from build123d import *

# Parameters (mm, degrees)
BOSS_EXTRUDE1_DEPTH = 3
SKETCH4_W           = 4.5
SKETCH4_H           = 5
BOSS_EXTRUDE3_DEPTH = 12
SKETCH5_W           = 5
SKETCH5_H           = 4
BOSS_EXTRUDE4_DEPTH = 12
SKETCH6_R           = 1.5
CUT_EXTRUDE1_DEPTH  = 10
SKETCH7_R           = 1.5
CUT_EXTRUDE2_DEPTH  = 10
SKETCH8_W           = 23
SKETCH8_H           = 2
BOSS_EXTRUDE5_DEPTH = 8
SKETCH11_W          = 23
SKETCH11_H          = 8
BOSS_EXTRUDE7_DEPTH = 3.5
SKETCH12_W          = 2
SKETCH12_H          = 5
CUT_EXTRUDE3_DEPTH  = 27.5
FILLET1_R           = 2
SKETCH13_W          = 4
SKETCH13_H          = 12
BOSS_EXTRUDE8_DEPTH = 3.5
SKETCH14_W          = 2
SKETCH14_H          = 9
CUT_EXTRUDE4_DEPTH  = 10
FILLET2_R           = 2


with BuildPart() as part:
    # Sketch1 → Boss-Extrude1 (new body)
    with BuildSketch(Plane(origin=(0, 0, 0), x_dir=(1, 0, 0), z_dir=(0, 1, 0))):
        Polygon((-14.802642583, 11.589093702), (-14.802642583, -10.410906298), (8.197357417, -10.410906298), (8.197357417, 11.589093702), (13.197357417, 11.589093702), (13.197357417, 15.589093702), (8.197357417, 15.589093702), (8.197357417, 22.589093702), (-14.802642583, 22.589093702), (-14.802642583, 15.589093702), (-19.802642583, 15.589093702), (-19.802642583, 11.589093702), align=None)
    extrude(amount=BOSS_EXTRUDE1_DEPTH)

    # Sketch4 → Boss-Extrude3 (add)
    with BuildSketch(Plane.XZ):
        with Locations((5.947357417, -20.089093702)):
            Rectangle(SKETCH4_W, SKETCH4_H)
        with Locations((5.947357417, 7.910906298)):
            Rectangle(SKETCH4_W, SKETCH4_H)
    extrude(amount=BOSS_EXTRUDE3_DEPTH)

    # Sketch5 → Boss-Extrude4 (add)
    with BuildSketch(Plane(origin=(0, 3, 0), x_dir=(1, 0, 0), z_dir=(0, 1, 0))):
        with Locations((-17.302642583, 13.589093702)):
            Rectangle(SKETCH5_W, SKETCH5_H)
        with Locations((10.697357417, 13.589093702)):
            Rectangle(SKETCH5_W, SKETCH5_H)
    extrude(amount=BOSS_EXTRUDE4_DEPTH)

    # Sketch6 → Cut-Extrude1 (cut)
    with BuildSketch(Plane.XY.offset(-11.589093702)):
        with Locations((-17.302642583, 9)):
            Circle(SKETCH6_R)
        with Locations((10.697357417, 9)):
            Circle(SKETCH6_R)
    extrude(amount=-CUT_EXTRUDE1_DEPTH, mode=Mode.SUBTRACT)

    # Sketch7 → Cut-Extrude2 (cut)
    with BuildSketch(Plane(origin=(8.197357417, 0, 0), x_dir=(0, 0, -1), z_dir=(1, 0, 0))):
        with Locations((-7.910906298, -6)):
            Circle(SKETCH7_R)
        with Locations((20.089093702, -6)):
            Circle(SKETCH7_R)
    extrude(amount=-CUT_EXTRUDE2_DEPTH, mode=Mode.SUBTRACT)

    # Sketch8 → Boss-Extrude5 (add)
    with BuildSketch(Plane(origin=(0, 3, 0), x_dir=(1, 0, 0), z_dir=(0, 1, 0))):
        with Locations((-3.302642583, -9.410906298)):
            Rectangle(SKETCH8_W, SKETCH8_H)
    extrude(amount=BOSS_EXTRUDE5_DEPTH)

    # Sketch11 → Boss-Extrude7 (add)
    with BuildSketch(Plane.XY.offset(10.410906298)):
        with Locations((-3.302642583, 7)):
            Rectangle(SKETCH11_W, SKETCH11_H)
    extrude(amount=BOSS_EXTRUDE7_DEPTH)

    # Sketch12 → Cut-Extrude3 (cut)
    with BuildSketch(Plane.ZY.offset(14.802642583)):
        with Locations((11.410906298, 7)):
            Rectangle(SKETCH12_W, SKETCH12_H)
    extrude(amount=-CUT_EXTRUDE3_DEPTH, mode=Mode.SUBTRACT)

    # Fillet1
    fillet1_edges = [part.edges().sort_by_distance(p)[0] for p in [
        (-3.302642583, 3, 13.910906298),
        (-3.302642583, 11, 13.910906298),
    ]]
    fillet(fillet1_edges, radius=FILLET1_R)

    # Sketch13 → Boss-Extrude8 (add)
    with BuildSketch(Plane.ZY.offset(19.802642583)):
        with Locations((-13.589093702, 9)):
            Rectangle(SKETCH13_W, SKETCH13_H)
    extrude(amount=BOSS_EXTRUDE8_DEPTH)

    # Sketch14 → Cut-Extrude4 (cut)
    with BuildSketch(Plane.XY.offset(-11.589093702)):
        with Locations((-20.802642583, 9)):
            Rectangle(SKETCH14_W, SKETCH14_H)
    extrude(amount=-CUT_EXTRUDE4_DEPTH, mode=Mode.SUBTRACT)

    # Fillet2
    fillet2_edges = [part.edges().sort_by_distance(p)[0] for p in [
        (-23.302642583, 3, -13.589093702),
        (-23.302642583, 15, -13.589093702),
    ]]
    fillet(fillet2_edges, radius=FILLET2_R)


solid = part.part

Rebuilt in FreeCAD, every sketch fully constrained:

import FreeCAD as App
import Part
import Sketcher

V = App.Vector


def edges_at(feature, points):
    """Names of the edges that pass closest to the given points."""
    edges = feature.Shape.Edges
    near = lambda p: min(range(len(edges)), key=lambda i: edges[i].distToShape(Part.Vertex(*p))[0])
    return sorted({f"Edge{near(p) + 1}" for p in points})

doc = App.newDocument("Part")
body = doc.addObject("PartDesign::Body", "Body")

# Sketch on XZ plane
sketch1 = body.newObject("Sketcher::SketchObject", "Sketch")
sketch1.AttachmentSupport = (doc.getObject("XZ_Plane"), [""])
sketch1.MapMode = "FlatFace"
sketch1.addGeometry(Part.LineSegment(V(-14.8, -11.6, 0), V(-14.8, 10.4, 0)), False)
sketch1.addGeometry(Part.LineSegment(V(-14.8, 10.4, 0), V(8.2, 10.4, 0)), False)
sketch1.addGeometry(Part.LineSegment(V(8.2, 10.4, 0), V(8.2, -11.6, 0)), False)
sketch1.addGeometry(Part.LineSegment(V(8.2, -11.6, 0), V(13.2, -11.6, 0)), False)
sketch1.addGeometry(Part.LineSegment(V(13.2, -11.6, 0), V(13.2, -15.6, 0)), False)
sketch1.addGeometry(Part.LineSegment(V(13.2, -15.6, 0), V(8.2, -15.6, 0)), False)
sketch1.addGeometry(Part.LineSegment(V(8.2, -15.6, 0), V(8.2, -22.6, 0)), False)
sketch1.addGeometry(Part.LineSegment(V(8.2, -22.6, 0), V(-14.8, -22.6, 0)), False)
sketch1.addGeometry(Part.LineSegment(V(-14.8, -22.6, 0), V(-14.8, -15.6, 0)), False)
sketch1.addGeometry(Part.LineSegment(V(-14.8, -15.6, 0), V(-19.8, -15.6, 0)), False)
sketch1.addGeometry(Part.LineSegment(V(-19.8, -15.6, 0), V(-19.8, -11.6, 0)), False)
sketch1.addGeometry(Part.LineSegment(V(-19.8, -11.6, 0), V(-14.8, -11.6, 0)), False)
sketch1.addConstraint(Sketcher.Constraint("Coincident", 0, 2, 1, 1))
sketch1.addConstraint(Sketcher.Constraint("Coincident", 1, 2, 2, 1))
sketch1.addConstraint(Sketcher.Constraint("Coincident", 2, 2, 3, 1))
sketch1.addConstraint(Sketcher.Constraint("Coincident", 3, 2, 4, 1))
sketch1.addConstraint(Sketcher.Constraint("Coincident", 4, 2, 5, 1))
sketch1.addConstraint(Sketcher.Constraint("Coincident", 5, 2, 6, 1))
sketch1.addConstraint(Sketcher.Constraint("Coincident", 6, 2, 7, 1))
sketch1.addConstraint(Sketcher.Constraint("Coincident", 7, 2, 8, 1))
sketch1.addConstraint(Sketcher.Constraint("Coincident", 8, 2, 9, 1))
sketch1.addConstraint(Sketcher.Constraint("Coincident", 9, 2, 10, 1))
sketch1.addConstraint(Sketcher.Constraint("Coincident", 10, 2, 11, 1))
sketch1.addConstraint(Sketcher.Constraint("Coincident", 11, 2, 0, 1))
sketch1.addConstraint(Sketcher.Constraint("Vertical", 0))
sketch1.addConstraint(Sketcher.Constraint("Horizontal", 1))
sketch1.addConstraint(Sketcher.Constraint("Vertical", 2))
sketch1.addConstraint(Sketcher.Constraint("Horizontal", 3))
sketch1.addConstraint(Sketcher.Constraint("Vertical", 4))
sketch1.addConstraint(Sketcher.Constraint("Horizontal", 5))
sketch1.addConstraint(Sketcher.Constraint("Vertical", 6))
sketch1.addConstraint(Sketcher.Constraint("Horizontal", 7))
sketch1.addConstraint(Sketcher.Constraint("Vertical", 8))
sketch1.addConstraint(Sketcher.Constraint("Horizontal", 9))
sketch1.addConstraint(Sketcher.Constraint("Vertical", 10))
sketch1.addConstraint(Sketcher.Constraint("Horizontal", 11))
sketch1.addConstraint(Sketcher.Constraint("Horizontal", 5, 2, 8, 2))
sketch1.addConstraint(Sketcher.Constraint("Horizontal", 3, 2, 10, 2))
sketch1.addConstraint(Sketcher.Constraint("Vertical", 2, 2, 5, 2))
sketch1.addConstraint(Sketcher.Constraint("Vertical", 0, 2, 7, 2))
sketch1.addConstraint(Sketcher.Constraint("Equal", 5, 9))
sketch1.addConstraint(Sketcher.Constraint("DistanceX", 1, 1, 1, 2, 23.0))
sketch1.addConstraint(Sketcher.Constraint("DistanceX", 3, 1, 3, 2, 5.0))
sketch1.addConstraint(Sketcher.Constraint("DistanceY", 0, 1, 0, 2, 22.0))
sketch1.addConstraint(Sketcher.Constraint("DistanceY", 4, 2, 4, 1, 4.0))
sketch1.addConstraint(Sketcher.Constraint("DistanceY", 6, 2, 6, 1, 7.0))
sketch1.addConstraint(Sketcher.Constraint("DistanceX", 0, 2, -1, 1, 14.802643))
sketch1.addConstraint(Sketcher.Constraint("DistanceY", -1, 1, 0, 2, 10.410906))
pad1 = body.newObject("PartDesign::Pad", "Pad")
pad1.Profile = sketch1
pad1.Length = 3
pad1.Reversed = True

# Sketch on XZ plane
sketch2 = body.newObject("Sketcher::SketchObject", "Sketch001")
sketch2.AttachmentSupport = (doc.getObject("XZ_Plane"), [""])
sketch2.MapMode = "FlatFace"
sketch2.addGeometry(Part.LineSegment(V(3.7, -17.6, 0), V(3.7, -22.6, 0)), False)
sketch2.addGeometry(Part.LineSegment(V(3.7, -22.6, 0), V(8.2, -22.6, 0)), False)
sketch2.addGeometry(Part.LineSegment(V(8.2, -22.6, 0), V(8.2, -17.6, 0)), False)
sketch2.addGeometry(Part.LineSegment(V(8.2, -17.6, 0), V(3.7, -17.6, 0)), False)
sketch2.addGeometry(Part.LineSegment(V(3.7, 10.4, 0), V(3.7, 5.4, 0)), False)
sketch2.addGeometry(Part.LineSegment(V(3.7, 5.4, 0), V(8.2, 5.4, 0)), False)
sketch2.addGeometry(Part.LineSegment(V(8.2, 5.4, 0), V(8.2, 10.4, 0)), False)
sketch2.addGeometry(Part.LineSegment(V(8.2, 10.4, 0), V(3.7, 10.4, 0)), False)
sketch2.addConstraint(Sketcher.Constraint("Coincident", 0, 2, 1, 1))
sketch2.addConstraint(Sketcher.Constraint("Coincident", 1, 2, 2, 1))
sketch2.addConstraint(Sketcher.Constraint("Coincident", 2, 2, 3, 1))
sketch2.addConstraint(Sketcher.Constraint("Coincident", 3, 2, 0, 1))
sketch2.addConstraint(Sketcher.Constraint("Coincident", 4, 2, 5, 1))
sketch2.addConstraint(Sketcher.Constraint("Coincident", 5, 2, 6, 1))
sketch2.addConstraint(Sketcher.Constraint("Coincident", 6, 2, 7, 1))
sketch2.addConstraint(Sketcher.Constraint("Coincident", 7, 2, 4, 1))
sketch2.addConstraint(Sketcher.Constraint("Vertical", 0))
sketch2.addConstraint(Sketcher.Constraint("Horizontal", 1))
sketch2.addConstraint(Sketcher.Constraint("Vertical", 2))
sketch2.addConstraint(Sketcher.Constraint("Horizontal", 3))
sketch2.addConstraint(Sketcher.Constraint("Vertical", 4))
sketch2.addConstraint(Sketcher.Constraint("Horizontal", 5))
sketch2.addConstraint(Sketcher.Constraint("Vertical", 6))
sketch2.addConstraint(Sketcher.Constraint("Horizontal", 7))
sketch2.addConstraint(Sketcher.Constraint("Vertical", 3, 2, 4, 2))
sketch2.addConstraint(Sketcher.Constraint("Vertical", 2, 2, 5, 2))
sketch2.addConstraint(Sketcher.Constraint("Equal", 2, 4))
sketch2.addConstraint(Sketcher.Constraint("DistanceY", 0, 2, 0, 1, 5.0))
sketch2.addConstraint(Sketcher.Constraint("DistanceX", 1, 1, 1, 2, 4.5))
sketch2.addConstraint(Sketcher.Constraint("DistanceY", 3, 2, 4, 2, 23.0))
sketch2.addConstraint(Sketcher.Constraint("DistanceX", -1, 1, 0, 2, 3.697357))
sketch2.addConstraint(Sketcher.Constraint("DistanceY", 0, 2, -1, 1, 22.589094))
pad2 = body.newObject("PartDesign::Pad", "Pad001")
pad2.Profile = sketch2
pad2.Length = 12

# Sketch on XZ plane
sketch3 = body.newObject("Sketcher::SketchObject", "Sketch002")
sketch3.AttachmentSupport = (doc.getObject("XZ_Plane"), [""])
sketch3.MapMode = "FlatFace"
sketch3.AttachmentOffset = App.Placement(V(0, 0, -3), App.Rotation())
sketch3.addGeometry(Part.LineSegment(V(-19.8, -15.6, 0), V(-19.8, -11.6, 0)), False)
sketch3.addGeometry(Part.LineSegment(V(-19.8, -11.6, 0), V(-14.8, -11.6, 0)), False)
sketch3.addGeometry(Part.LineSegment(V(-14.8, -11.6, 0), V(-14.8, -15.6, 0)), False)
sketch3.addGeometry(Part.LineSegment(V(-14.8, -15.6, 0), V(-19.8, -15.6, 0)), False)
sketch3.addGeometry(Part.LineSegment(V(8.2, -15.6, 0), V(8.2, -11.6, 0)), False)
sketch3.addGeometry(Part.LineSegment(V(8.2, -11.6, 0), V(13.2, -11.6, 0)), False)
sketch3.addGeometry(Part.LineSegment(V(13.2, -11.6, 0), V(13.2, -15.6, 0)), False)
sketch3.addGeometry(Part.LineSegment(V(13.2, -15.6, 0), V(8.2, -15.6, 0)), False)
sketch3.addConstraint(Sketcher.Constraint("Coincident", 0, 2, 1, 1))
sketch3.addConstraint(Sketcher.Constraint("Coincident", 1, 2, 2, 1))
sketch3.addConstraint(Sketcher.Constraint("Coincident", 2, 2, 3, 1))
sketch3.addConstraint(Sketcher.Constraint("Coincident", 3, 2, 0, 1))
sketch3.addConstraint(Sketcher.Constraint("Coincident", 4, 2, 5, 1))
sketch3.addConstraint(Sketcher.Constraint("Coincident", 5, 2, 6, 1))
sketch3.addConstraint(Sketcher.Constraint("Coincident", 6, 2, 7, 1))
sketch3.addConstraint(Sketcher.Constraint("Coincident", 7, 2, 4, 1))
sketch3.addConstraint(Sketcher.Constraint("Vertical", 0))
sketch3.addConstraint(Sketcher.Constraint("Horizontal", 1))
sketch3.addConstraint(Sketcher.Constraint("Vertical", 2))
sketch3.addConstraint(Sketcher.Constraint("Horizontal", 3))
sketch3.addConstraint(Sketcher.Constraint("Vertical", 4))
sketch3.addConstraint(Sketcher.Constraint("Horizontal", 5))
sketch3.addConstraint(Sketcher.Constraint("Vertical", 6))
sketch3.addConstraint(Sketcher.Constraint("Horizontal", 7))
sketch3.addConstraint(Sketcher.Constraint("Horizontal", 1, 2, 4, 2))
sketch3.addConstraint(Sketcher.Constraint("Horizontal", 3, 2, 6, 2))
sketch3.addConstraint(Sketcher.Constraint("Equal", 3, 5))
sketch3.addConstraint(Sketcher.Constraint("DistanceX", 1, 1, 1, 2, 5.0))
sketch3.addConstraint(Sketcher.Constraint("DistanceY", 0, 1, 0, 2, 4.0))
sketch3.addConstraint(Sketcher.Constraint("DistanceX", 1, 2, 4, 2, 23.0))
sketch3.addConstraint(Sketcher.Constraint("DistanceX", 0, 2, -1, 1, 19.802643))
sketch3.addConstraint(Sketcher.Constraint("DistanceY", 0, 2, -1, 1, 11.589094))
pad3 = body.newObject("PartDesign::Pad", "Pad002")
pad3.Profile = sketch3
pad3.Length = 12
pad3.Reversed = True

# Sketch on XY plane
sketch4 = body.newObject("Sketcher::SketchObject", "Sketch003")
sketch4.AttachmentSupport = (doc.getObject("XY_Plane"), [""])
sketch4.MapMode = "FlatFace"
sketch4.AttachmentOffset = App.Placement(V(0, 0, -11.589094), App.Rotation())
sketch4.addGeometry(Part.Circle(V(-17.3, 9, 0), V(0, 0, 1), 1.5), False)
sketch4.addGeometry(Part.Circle(V(10.7, 9, 0), V(0, 0, 1), 1.5), False)
sketch4.addConstraint(Sketcher.Constraint("Equal", 0, 1))
sketch4.addConstraint(Sketcher.Constraint("Horizontal", 0, 3, 1, 3))
sketch4.addConstraint(Sketcher.Constraint("Diameter", 0, 3.0))
sketch4.addConstraint(Sketcher.Constraint("DistanceY", -1, 1, 0, 3, 9.0))
sketch4.addConstraint(Sketcher.Constraint("DistanceX", 0, 3, 1, 3, 28.0))
sketch4.addConstraint(Sketcher.Constraint("DistanceX", 0, 3, -1, 1, 17.302643))
pocket1 = body.newObject("PartDesign::Pocket", "Pocket")
pocket1.Profile = sketch4
pocket1.Length = 10

# Sketch on YZ plane
sketch5 = body.newObject("Sketcher::SketchObject", "Sketch004")
sketch5.AttachmentSupport = (doc.getObject("YZ_Plane"), [""])
sketch5.MapMode = "FlatFace"
sketch5.AttachmentOffset = App.Placement(V(0, 0, 8.197357), App.Rotation())
sketch5.addGeometry(Part.Circle(V(-6, 7.9, 0), V(0, 0, 1), 1.5), False)
sketch5.addGeometry(Part.Circle(V(-6, -20.1, 0), V(0, 0, 1), 1.5), False)
sketch5.addConstraint(Sketcher.Constraint("Equal", 0, 1))
sketch5.addConstraint(Sketcher.Constraint("Vertical", 0, 3, 1, 3))
sketch5.addConstraint(Sketcher.Constraint("Diameter", 0, 3.0))
sketch5.addConstraint(Sketcher.Constraint("DistanceX", 0, 3, -1, 1, 6.0))
sketch5.addConstraint(Sketcher.Constraint("DistanceY", 1, 3, 0, 3, 28.0))
sketch5.addConstraint(Sketcher.Constraint("DistanceY", -1, 1, 0, 3, 7.910906))
pocket2 = body.newObject("PartDesign::Pocket", "Pocket001")
pocket2.Profile = sketch5
pocket2.Length = 10

# Sketch on XZ plane
sketch6 = body.newObject("Sketcher::SketchObject", "Sketch005")
sketch6.AttachmentSupport = (doc.getObject("XZ_Plane"), [""])
sketch6.MapMode = "FlatFace"
sketch6.AttachmentOffset = App.Placement(V(0, 0, -3), App.Rotation())
sketch6.addGeometry(Part.LineSegment(V(-14.8, 8.4, 0), V(-14.8, 10.4, 0)), False)
sketch6.addGeometry(Part.LineSegment(V(-14.8, 10.4, 0), V(8.2, 10.4, 0)), False)
sketch6.addGeometry(Part.LineSegment(V(8.2, 10.4, 0), V(8.2, 8.4, 0)), False)
sketch6.addGeometry(Part.LineSegment(V(8.2, 8.4, 0), V(-14.8, 8.4, 0)), False)
sketch6.addConstraint(Sketcher.Constraint("Coincident", 0, 2, 1, 1))
sketch6.addConstraint(Sketcher.Constraint("Coincident", 1, 2, 2, 1))
sketch6.addConstraint(Sketcher.Constraint("Coincident", 2, 2, 3, 1))
sketch6.addConstraint(Sketcher.Constraint("Coincident", 3, 2, 0, 1))
sketch6.addConstraint(Sketcher.Constraint("Vertical", 0))
sketch6.addConstraint(Sketcher.Constraint("Horizontal", 1))
sketch6.addConstraint(Sketcher.Constraint("Vertical", 2))
sketch6.addConstraint(Sketcher.Constraint("Horizontal", 3))
sketch6.addConstraint(Sketcher.Constraint("DistanceX", 1, 1, 1, 2, 23.0))
sketch6.addConstraint(Sketcher.Constraint("DistanceY", 0, 1, 0, 2, 2.0))
sketch6.addConstraint(Sketcher.Constraint("DistanceX", 0, 2, -1, 1, 14.802643))
sketch6.addConstraint(Sketcher.Constraint("DistanceY", -1, 1, 0, 2, 10.410906))
pad4 = body.newObject("PartDesign::Pad", "Pad003")
pad4.Profile = sketch6
pad4.Length = 8
pad4.Reversed = True

# Sketch on XY plane
sketch7 = body.newObject("Sketcher::SketchObject", "Sketch006")
sketch7.AttachmentSupport = (doc.getObject("XY_Plane"), [""])
sketch7.MapMode = "FlatFace"
sketch7.AttachmentOffset = App.Placement(V(0, 0, 10.410906), App.Rotation())
sketch7.addGeometry(Part.LineSegment(V(-15, 11, 0), V(-15, 3, 0)), False)
sketch7.addGeometry(Part.LineSegment(V(-15, 3, 0), V(8, 3, 0)), False)
sketch7.addGeometry(Part.LineSegment(V(8, 3, 0), V(8, 11, 0)), False)
sketch7.addGeometry(Part.LineSegment(V(8, 11, 0), V(-15, 11, 0)), False)
sketch7.addConstraint(Sketcher.Constraint("Coincident", 0, 2, 1, 1))
sketch7.addConstraint(Sketcher.Constraint("Coincident", 1, 2, 2, 1))
sketch7.addConstraint(Sketcher.Constraint("Coincident", 2, 2, 3, 1))
sketch7.addConstraint(Sketcher.Constraint("Coincident", 3, 2, 0, 1))
sketch7.addConstraint(Sketcher.Constraint("Vertical", 0))
sketch7.addConstraint(Sketcher.Constraint("Horizontal", 1))
sketch7.addConstraint(Sketcher.Constraint("Vertical", 2))
sketch7.addConstraint(Sketcher.Constraint("Horizontal", 3))
sketch7.addConstraint(Sketcher.Constraint("DistanceX", 1, 1, 1, 2, 23.0))
sketch7.addConstraint(Sketcher.Constraint("DistanceY", 0, 2, 0, 1, 8.0))
sketch7.addConstraint(Sketcher.Constraint("DistanceY", -1, 1, 0, 2, 3.0))
sketch7.addConstraint(Sketcher.Constraint("DistanceX", 0, 2, -1, 1, 14.802643))
pad5 = body.newObject("PartDesign::Pad", "Pad004")
pad5.Profile = sketch7
pad5.Length = 3.5

# Sketch on YZ plane
sketch8 = body.newObject("Sketcher::SketchObject", "Sketch007")
sketch8.AttachmentSupport = (doc.getObject("YZ_Plane"), [""])
sketch8.MapMode = "FlatFace"
sketch8.AttachmentOffset = App.Placement(V(0, 0, -14.802643), App.Rotation())
sketch8.addGeometry(Part.LineSegment(V(9.5, 10.4, 0), V(4.5, 10.4, 0)), False)
sketch8.addGeometry(Part.LineSegment(V(4.5, 10.4, 0), V(4.5, 12.4, 0)), False)
sketch8.addGeometry(Part.LineSegment(V(4.5, 12.4, 0), V(9.5, 12.4, 0)), False)
sketch8.addGeometry(Part.LineSegment(V(9.5, 12.4, 0), V(9.5, 10.4, 0)), False)
sketch8.addConstraint(Sketcher.Constraint("Coincident", 0, 2, 1, 1))
sketch8.addConstraint(Sketcher.Constraint("Coincident", 1, 2, 2, 1))
sketch8.addConstraint(Sketcher.Constraint("Coincident", 2, 2, 3, 1))
sketch8.addConstraint(Sketcher.Constraint("Coincident", 3, 2, 0, 1))
sketch8.addConstraint(Sketcher.Constraint("Horizontal", 0))
sketch8.addConstraint(Sketcher.Constraint("Vertical", 1))
sketch8.addConstraint(Sketcher.Constraint("Horizontal", 2))
sketch8.addConstraint(Sketcher.Constraint("Vertical", 3))
sketch8.addConstraint(Sketcher.Constraint("DistanceX", 0, 2, 0, 1, 5.0))
sketch8.addConstraint(Sketcher.Constraint("DistanceY", 1, 1, 1, 2, 2.0))
sketch8.addConstraint(Sketcher.Constraint("DistanceX", -1, 1, 0, 2, 4.5))
sketch8.addConstraint(Sketcher.Constraint("DistanceY", -1, 1, 0, 2, 10.410906))
pocket3 = body.newObject("PartDesign::Pocket", "Pocket002")
pocket3.Profile = sketch8
pocket3.Length = 27.5
pocket3.Reversed = True
doc.recompute()

fillet = body.newObject("PartDesign::Fillet", "Fillet")
fillet.Base = (pocket3, edges_at(pocket3, [(-3.303, 3, 13.911), (-3.303, 11, 13.911)]))
fillet.Radius = 2

# Sketch on YZ plane
sketch9 = body.newObject("Sketcher::SketchObject", "Sketch008")
sketch9.AttachmentSupport = (doc.getObject("YZ_Plane"), [""])
sketch9.MapMode = "FlatFace"
sketch9.AttachmentOffset = App.Placement(V(0, 0, -19.802643), App.Rotation())
sketch9.addGeometry(Part.LineSegment(V(15, -15.6, 0), V(3, -15.6, 0)), False)
sketch9.addGeometry(Part.LineSegment(V(3, -15.6, 0), V(3, -11.6, 0)), False)
sketch9.addGeometry(Part.LineSegment(V(3, -11.6, 0), V(15, -11.6, 0)), False)
sketch9.addGeometry(Part.LineSegment(V(15, -11.6, 0), V(15, -15.6, 0)), False)
sketch9.addConstraint(Sketcher.Constraint("Coincident", 0, 2, 1, 1))
sketch9.addConstraint(Sketcher.Constraint("Coincident", 1, 2, 2, 1))
sketch9.addConstraint(Sketcher.Constraint("Coincident", 2, 2, 3, 1))
sketch9.addConstraint(Sketcher.Constraint("Coincident", 3, 2, 0, 1))
sketch9.addConstraint(Sketcher.Constraint("Horizontal", 0))
sketch9.addConstraint(Sketcher.Constraint("Vertical", 1))
sketch9.addConstraint(Sketcher.Constraint("Horizontal", 2))
sketch9.addConstraint(Sketcher.Constraint("Vertical", 3))
sketch9.addConstraint(Sketcher.Constraint("DistanceX", 0, 2, 0, 1, 12.0))
sketch9.addConstraint(Sketcher.Constraint("DistanceY", 1, 1, 1, 2, 4.0))
sketch9.addConstraint(Sketcher.Constraint("DistanceX", -1, 1, 0, 2, 3.0))
sketch9.addConstraint(Sketcher.Constraint("DistanceY", 0, 2, -1, 1, 15.589094))
pad6 = body.newObject("PartDesign::Pad", "Pad005")
pad6.Profile = sketch9
pad6.Length = 3.5
pad6.Reversed = True

# Sketch on XY plane
sketch10 = body.newObject("Sketcher::SketchObject", "Sketch009")
sketch10.AttachmentSupport = (doc.getObject("XY_Plane"), [""])
sketch10.MapMode = "FlatFace"
sketch10.AttachmentOffset = App.Placement(V(0, 0, -11.589094), App.Rotation())
sketch10.addGeometry(Part.LineSegment(V(-21.8, 13.5, 0), V(-21.8, 4.5, 0)), False)
sketch10.addGeometry(Part.LineSegment(V(-21.8, 4.5, 0), V(-19.8, 4.5, 0)), False)
sketch10.addGeometry(Part.LineSegment(V(-19.8, 4.5, 0), V(-19.8, 13.5, 0)), False)
sketch10.addGeometry(Part.LineSegment(V(-19.8, 13.5, 0), V(-21.8, 13.5, 0)), False)
sketch10.addConstraint(Sketcher.Constraint("Coincident", 0, 2, 1, 1))
sketch10.addConstraint(Sketcher.Constraint("Coincident", 1, 2, 2, 1))
sketch10.addConstraint(Sketcher.Constraint("Coincident", 2, 2, 3, 1))
sketch10.addConstraint(Sketcher.Constraint("Coincident", 3, 2, 0, 1))
sketch10.addConstraint(Sketcher.Constraint("Vertical", 0))
sketch10.addConstraint(Sketcher.Constraint("Horizontal", 1))
sketch10.addConstraint(Sketcher.Constraint("Vertical", 2))
sketch10.addConstraint(Sketcher.Constraint("Horizontal", 3))
sketch10.addConstraint(Sketcher.Constraint("DistanceX", 1, 1, 1, 2, 2.0))
sketch10.addConstraint(Sketcher.Constraint("DistanceY", 0, 2, 0, 1, 9.0))
sketch10.addConstraint(Sketcher.Constraint("DistanceY", -1, 1, 0, 2, 4.5))
sketch10.addConstraint(Sketcher.Constraint("DistanceX", 0, 2, -1, 1, 21.802643))
pocket4 = body.newObject("PartDesign::Pocket", "Pocket003")
pocket4.Profile = sketch10
pocket4.Length = 10
doc.recompute()

fillet2 = body.newObject("PartDesign::Fillet", "Fillet001")
fillet2.Base = (pocket4, edges_at(pocket4, [(-23.303, 3, -13.589), (-23.303, 15, -13.589)]))
fillet2.Radius = 2

doc.recompute()
